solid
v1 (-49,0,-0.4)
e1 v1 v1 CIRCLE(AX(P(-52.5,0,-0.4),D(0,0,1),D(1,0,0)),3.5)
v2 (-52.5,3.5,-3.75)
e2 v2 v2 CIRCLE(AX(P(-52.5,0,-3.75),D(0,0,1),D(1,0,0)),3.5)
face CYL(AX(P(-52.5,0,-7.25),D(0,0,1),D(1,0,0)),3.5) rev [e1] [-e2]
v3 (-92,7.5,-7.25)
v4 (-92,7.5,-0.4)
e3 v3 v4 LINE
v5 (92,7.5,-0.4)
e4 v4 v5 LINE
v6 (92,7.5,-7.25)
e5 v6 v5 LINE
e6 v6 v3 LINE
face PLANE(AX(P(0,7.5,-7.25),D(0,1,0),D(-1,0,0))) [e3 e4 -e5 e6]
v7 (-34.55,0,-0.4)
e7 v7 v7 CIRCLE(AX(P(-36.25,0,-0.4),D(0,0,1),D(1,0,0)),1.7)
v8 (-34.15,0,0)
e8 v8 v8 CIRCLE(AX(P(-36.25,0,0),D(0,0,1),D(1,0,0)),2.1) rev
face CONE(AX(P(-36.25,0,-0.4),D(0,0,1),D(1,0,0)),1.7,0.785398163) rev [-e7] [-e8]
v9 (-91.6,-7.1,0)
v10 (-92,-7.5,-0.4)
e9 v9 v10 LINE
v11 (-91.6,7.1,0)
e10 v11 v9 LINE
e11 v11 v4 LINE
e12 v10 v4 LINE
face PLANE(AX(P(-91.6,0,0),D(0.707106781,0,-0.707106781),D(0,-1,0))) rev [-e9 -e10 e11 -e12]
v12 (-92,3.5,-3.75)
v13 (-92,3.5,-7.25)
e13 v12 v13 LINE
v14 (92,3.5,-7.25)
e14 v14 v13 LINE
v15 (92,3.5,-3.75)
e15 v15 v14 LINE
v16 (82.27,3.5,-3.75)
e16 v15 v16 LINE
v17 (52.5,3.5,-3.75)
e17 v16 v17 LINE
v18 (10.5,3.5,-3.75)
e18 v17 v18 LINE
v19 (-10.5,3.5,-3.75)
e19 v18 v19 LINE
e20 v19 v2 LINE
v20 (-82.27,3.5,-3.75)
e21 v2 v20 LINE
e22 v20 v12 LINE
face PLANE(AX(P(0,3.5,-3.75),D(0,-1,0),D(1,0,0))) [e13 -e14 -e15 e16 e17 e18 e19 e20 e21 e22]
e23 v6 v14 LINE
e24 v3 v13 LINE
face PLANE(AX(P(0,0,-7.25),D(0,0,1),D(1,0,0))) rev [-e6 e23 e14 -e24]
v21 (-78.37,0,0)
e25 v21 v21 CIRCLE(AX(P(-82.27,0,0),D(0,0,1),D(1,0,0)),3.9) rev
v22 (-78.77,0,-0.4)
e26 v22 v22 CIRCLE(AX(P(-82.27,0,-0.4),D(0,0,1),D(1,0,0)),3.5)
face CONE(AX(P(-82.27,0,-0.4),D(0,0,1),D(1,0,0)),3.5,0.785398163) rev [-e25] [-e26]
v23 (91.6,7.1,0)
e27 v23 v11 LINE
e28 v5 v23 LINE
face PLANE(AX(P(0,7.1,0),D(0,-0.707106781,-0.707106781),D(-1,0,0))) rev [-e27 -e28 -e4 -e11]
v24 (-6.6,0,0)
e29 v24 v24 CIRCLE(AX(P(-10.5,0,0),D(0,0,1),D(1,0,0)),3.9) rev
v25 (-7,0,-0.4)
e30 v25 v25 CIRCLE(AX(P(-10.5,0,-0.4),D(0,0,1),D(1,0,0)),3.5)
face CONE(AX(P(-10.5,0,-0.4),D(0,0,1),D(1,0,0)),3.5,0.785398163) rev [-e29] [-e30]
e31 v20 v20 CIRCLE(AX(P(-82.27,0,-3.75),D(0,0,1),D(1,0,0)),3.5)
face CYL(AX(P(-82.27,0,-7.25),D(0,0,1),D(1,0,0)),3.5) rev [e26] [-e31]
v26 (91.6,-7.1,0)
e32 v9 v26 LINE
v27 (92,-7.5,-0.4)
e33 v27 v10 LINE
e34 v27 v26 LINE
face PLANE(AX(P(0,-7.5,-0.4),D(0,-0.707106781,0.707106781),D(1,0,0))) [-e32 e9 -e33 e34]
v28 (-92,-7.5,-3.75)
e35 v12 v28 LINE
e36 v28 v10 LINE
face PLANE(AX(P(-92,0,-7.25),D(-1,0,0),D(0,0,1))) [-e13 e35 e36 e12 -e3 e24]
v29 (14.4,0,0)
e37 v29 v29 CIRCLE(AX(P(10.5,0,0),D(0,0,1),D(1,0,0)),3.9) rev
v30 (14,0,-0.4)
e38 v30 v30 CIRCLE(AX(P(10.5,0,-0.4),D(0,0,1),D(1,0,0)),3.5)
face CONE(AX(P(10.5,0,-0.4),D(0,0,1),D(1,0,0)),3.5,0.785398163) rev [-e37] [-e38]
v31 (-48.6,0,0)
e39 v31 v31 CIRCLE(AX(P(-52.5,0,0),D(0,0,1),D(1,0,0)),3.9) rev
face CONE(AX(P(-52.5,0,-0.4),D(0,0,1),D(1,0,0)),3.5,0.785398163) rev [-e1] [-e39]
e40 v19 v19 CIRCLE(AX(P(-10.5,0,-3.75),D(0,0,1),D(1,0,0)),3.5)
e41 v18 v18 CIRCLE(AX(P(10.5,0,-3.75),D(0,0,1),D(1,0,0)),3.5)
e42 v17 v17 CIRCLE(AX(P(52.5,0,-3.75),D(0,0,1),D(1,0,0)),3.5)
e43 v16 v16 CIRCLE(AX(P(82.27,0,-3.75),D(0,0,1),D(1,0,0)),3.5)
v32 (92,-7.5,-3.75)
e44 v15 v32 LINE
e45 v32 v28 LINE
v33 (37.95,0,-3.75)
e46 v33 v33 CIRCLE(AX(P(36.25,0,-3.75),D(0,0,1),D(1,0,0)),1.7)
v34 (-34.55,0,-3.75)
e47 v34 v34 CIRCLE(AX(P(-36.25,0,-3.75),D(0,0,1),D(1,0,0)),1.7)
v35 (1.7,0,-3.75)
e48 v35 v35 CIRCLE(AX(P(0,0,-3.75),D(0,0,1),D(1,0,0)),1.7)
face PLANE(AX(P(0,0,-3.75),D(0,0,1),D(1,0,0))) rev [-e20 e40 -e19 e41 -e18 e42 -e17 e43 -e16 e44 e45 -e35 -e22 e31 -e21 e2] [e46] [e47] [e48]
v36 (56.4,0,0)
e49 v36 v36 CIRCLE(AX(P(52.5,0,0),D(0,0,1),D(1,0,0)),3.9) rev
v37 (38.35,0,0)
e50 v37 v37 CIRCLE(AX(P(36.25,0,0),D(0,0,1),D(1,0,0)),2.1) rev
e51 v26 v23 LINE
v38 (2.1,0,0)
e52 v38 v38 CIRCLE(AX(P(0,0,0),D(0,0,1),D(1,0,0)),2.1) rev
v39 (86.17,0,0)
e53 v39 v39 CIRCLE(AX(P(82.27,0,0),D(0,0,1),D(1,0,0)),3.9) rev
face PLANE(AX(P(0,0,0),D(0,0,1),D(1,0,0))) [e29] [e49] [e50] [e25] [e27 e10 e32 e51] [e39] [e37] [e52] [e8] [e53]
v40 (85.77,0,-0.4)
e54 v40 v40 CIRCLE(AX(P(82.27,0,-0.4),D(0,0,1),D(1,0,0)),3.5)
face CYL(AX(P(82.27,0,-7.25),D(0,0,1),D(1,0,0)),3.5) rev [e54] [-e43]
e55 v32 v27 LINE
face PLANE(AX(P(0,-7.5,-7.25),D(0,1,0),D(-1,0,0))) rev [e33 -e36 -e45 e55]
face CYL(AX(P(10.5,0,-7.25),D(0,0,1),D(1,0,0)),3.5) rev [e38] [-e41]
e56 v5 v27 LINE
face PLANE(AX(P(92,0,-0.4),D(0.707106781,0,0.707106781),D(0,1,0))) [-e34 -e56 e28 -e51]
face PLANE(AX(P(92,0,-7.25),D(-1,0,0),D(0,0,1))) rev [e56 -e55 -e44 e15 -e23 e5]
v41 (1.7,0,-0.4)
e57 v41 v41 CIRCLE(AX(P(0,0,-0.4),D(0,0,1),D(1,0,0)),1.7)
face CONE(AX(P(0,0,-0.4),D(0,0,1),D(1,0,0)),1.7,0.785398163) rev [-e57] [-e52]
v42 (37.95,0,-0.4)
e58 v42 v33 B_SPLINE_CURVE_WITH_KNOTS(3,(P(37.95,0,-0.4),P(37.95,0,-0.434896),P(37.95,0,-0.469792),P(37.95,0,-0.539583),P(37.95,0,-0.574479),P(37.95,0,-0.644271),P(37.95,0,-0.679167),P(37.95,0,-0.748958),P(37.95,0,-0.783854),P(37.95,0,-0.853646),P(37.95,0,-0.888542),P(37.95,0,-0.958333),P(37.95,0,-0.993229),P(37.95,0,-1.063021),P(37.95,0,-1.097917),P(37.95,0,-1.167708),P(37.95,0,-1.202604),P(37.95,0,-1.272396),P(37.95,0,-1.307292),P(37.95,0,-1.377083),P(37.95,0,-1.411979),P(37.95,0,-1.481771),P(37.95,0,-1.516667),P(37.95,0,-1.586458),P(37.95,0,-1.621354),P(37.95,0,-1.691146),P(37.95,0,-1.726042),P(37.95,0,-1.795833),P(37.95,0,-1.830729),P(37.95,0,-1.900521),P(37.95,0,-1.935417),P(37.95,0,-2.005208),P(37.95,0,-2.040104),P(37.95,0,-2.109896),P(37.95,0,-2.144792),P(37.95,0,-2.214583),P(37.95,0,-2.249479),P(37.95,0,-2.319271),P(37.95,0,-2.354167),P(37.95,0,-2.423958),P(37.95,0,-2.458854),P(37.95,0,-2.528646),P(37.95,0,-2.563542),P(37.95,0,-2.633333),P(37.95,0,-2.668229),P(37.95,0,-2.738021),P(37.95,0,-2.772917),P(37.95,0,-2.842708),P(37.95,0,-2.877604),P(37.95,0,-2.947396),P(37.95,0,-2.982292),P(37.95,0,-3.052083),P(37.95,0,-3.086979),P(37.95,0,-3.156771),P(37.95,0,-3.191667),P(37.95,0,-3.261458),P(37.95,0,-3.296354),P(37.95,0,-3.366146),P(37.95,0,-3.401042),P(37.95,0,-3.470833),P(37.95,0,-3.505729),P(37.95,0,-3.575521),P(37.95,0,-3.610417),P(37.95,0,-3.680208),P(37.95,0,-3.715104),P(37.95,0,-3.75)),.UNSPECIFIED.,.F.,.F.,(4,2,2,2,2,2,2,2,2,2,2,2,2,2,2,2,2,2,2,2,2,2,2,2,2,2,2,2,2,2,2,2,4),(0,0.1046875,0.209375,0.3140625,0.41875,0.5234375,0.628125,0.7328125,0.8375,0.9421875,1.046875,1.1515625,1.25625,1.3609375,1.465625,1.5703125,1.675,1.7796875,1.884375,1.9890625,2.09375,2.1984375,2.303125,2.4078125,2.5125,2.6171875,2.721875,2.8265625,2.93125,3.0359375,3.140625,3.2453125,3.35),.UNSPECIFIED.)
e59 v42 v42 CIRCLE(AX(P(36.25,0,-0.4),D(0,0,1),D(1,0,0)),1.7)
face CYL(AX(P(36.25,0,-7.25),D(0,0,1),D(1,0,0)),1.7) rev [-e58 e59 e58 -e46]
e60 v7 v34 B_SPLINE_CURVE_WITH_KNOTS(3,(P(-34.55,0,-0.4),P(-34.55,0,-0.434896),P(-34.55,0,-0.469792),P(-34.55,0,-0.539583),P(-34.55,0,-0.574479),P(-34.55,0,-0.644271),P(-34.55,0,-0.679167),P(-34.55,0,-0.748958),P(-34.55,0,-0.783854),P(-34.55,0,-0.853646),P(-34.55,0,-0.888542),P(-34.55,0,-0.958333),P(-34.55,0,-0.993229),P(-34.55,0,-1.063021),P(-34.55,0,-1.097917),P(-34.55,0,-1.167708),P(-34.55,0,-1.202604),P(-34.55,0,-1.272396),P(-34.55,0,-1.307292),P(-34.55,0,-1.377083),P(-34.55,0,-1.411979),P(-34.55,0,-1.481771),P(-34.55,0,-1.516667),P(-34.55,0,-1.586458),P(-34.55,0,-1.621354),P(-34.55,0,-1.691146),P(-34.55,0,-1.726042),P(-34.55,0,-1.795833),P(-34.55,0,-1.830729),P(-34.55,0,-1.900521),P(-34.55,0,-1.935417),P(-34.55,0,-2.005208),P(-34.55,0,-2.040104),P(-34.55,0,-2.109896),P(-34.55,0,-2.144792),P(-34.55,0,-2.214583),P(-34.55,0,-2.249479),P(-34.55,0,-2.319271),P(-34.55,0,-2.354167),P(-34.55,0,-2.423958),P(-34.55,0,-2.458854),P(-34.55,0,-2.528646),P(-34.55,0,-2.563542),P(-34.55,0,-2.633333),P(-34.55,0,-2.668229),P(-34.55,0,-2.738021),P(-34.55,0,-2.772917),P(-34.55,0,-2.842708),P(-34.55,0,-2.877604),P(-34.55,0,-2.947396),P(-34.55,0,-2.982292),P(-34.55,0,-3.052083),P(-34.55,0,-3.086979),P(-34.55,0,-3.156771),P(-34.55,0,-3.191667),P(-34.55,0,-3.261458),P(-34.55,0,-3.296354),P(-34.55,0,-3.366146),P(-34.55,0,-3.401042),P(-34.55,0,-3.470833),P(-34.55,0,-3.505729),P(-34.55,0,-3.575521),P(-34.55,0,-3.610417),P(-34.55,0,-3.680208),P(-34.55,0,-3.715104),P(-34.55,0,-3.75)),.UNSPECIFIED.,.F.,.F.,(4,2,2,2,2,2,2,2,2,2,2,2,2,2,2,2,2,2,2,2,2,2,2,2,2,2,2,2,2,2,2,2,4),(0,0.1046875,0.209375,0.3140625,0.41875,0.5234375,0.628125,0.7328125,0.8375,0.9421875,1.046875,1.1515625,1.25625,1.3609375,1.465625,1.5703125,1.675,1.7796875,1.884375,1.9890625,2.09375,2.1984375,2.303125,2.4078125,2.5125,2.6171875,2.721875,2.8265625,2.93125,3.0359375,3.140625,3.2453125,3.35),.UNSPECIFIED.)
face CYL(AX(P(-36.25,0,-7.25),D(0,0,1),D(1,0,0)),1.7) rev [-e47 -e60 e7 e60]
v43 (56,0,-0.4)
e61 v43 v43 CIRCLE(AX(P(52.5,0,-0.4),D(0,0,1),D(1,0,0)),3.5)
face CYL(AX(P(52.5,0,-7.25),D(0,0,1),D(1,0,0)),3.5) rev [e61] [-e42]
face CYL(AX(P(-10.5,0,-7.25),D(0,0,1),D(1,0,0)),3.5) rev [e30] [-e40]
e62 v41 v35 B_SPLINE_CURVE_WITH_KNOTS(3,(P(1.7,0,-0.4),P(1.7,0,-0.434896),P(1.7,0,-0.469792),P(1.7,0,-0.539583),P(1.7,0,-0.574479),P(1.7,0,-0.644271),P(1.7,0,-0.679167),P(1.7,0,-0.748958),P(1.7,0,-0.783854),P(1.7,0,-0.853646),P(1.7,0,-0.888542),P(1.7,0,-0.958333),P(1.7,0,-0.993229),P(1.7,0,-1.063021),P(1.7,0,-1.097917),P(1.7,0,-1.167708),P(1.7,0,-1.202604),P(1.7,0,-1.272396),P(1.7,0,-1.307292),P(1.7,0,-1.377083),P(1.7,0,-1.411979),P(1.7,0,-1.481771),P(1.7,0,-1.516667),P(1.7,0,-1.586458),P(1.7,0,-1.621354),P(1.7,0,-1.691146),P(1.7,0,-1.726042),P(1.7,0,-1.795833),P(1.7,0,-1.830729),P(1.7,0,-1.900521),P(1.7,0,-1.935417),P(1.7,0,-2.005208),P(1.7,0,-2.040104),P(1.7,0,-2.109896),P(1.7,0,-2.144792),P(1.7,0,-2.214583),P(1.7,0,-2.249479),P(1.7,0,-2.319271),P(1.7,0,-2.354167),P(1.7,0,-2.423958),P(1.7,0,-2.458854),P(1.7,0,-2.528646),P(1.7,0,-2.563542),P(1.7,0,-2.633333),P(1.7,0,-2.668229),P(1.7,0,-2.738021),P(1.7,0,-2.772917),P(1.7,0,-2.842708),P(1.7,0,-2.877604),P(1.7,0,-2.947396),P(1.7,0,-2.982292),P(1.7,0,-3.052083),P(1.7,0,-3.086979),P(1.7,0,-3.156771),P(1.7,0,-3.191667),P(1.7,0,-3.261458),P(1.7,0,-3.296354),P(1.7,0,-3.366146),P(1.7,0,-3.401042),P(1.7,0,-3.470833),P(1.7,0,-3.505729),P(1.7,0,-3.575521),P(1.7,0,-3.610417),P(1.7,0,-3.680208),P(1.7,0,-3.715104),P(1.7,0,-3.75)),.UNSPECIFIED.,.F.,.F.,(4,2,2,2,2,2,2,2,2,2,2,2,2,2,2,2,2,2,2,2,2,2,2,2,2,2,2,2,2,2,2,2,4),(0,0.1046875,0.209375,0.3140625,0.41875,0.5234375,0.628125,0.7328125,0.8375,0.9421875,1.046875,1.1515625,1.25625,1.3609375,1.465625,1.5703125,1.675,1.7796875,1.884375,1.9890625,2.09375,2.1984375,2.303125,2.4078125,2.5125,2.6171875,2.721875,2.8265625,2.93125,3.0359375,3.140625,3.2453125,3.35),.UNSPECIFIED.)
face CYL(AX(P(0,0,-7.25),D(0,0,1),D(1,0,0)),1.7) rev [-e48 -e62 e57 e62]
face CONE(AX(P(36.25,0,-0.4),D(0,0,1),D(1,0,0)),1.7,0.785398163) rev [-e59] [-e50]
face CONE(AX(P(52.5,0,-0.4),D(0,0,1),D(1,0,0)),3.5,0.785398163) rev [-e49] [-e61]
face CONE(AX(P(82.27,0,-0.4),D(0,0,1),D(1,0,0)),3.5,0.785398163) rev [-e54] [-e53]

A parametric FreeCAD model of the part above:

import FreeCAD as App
import Part
import Sketcher
from FreeCAD import Vector
Q = App.Units.Quantity


def edges_at(feature, points):
    """Names of the edges that pass closest to the given points."""
    edges = feature.Shape.Edges
    near = lambda p: min(range(len(edges)), key=lambda i: edges[i].distToShape(Part.Vertex(*p))[0])
    return sorted({f"Edge{near(p) + 1}" for p in points})

doc = App.newDocument("Part")
body = doc.addObject("PartDesign::Body", "Body")

sketch1 = body.newObject("Sketcher::SketchObject", "Sketch")
sketch1.AttachmentSupport = (doc.getObject("XY_Plane"), [""])
sketch1.MapMode = "FlatFace"
sketch1.addGeometry(Part.LineSegment(Vector(-92, 8, 0), Vector(-92, -8, 0)), False)
sketch1.addGeometry(Part.LineSegment(Vector(-92, -8, 0), Vector(92, -8, 0)), False)
sketch1.addGeometry(Part.LineSegment(Vector(92, -8, 0), Vector(92, 8, 0)), False)
sketch1.addGeometry(Part.LineSegment(Vector(92, 8, 0), Vector(-92, 8, 0)), False)
sketch1.addConstraint(Sketcher.Constraint("Coincident", 0, 2, 1, 1))
sketch1.addConstraint(Sketcher.Constraint("Coincident", 1, 2, 2, 1))
sketch1.addConstraint(Sketcher.Constraint("Coincident", 2, 2, 3, 1))
sketch1.addConstraint(Sketcher.Constraint("Coincident", 3, 2, 0, 1))
sketch1.addConstraint(Sketcher.Constraint("Vertical", 0))
sketch1.addConstraint(Sketcher.Constraint("Horizontal", 1))
sketch1.addConstraint(Sketcher.Constraint("Vertical", 2))
sketch1.addConstraint(Sketcher.Constraint("Horizontal", 3))
sketch1.addConstraint(Sketcher.Constraint("Symmetric", 0, 2, 2, 2, -1, 1))
sketch1.addConstraint(Sketcher.Constraint("DistanceX", 1, 1, 1, 2, Q("184 mm")))
sketch1.addConstraint(Sketcher.Constraint("DistanceY", 0, 2, 0, 1, Q("15 mm")))
pad1 = body.newObject("PartDesign::Pad", "Pad")
pad1.Profile = sketch1
pad1.Length = 7.25
pad1.Reversed = True

sketch2 = body.newObject("Sketcher::SketchObject", "Sketch001")
sketch2.AttachmentSupport = (doc.getObject("XY_Plane"), [""])
sketch2.MapMode = "FlatFace"
sketch2.AttachmentOffset = App.Placement(Vector(0, 0, -7.25), App.Rotation())
sketch2.addGeometry(Part.LineSegment(Vector(-92, 4, 0), Vector(-92, -8, 0)), False)
sketch2.addGeometry(Part.LineSegment(Vector(-92, -8, 0), Vector(92, -8, 0)), False)
sketch2.addGeometry(Part.LineSegment(Vector(92, -8, 0), Vector(92, 4, 0)), False)
sketch2.addGeometry(Part.LineSegment(Vector(92, 4, 0), Vector(-92, 4, 0)), False)
sketch2.addConstraint(Sketcher.Constraint("Coincident", 0, 2, 1, 1))
sketch2.addConstraint(Sketcher.Constraint("Coincident", 1, 2, 2, 1))
sketch2.addConstraint(Sketcher.Constraint("Coincident", 2, 2, 3, 1))
sketch2.addConstraint(Sketcher.Constraint("Coincident", 3, 2, 0, 1))
sketch2.addConstraint(Sketcher.Constraint("Vertical", 0))
sketch2.addConstraint(Sketcher.Constraint("Horizontal", 1))
sketch2.addConstraint(Sketcher.Constraint("Vertical", 2))
sketch2.addConstraint(Sketcher.Constraint("Horizontal", 3))
sketch2.addConstraint(Sketcher.Constraint("DistanceX", 1, 1, 1, 2, Q("184 mm")))
sketch2.addConstraint(Sketcher.Constraint("DistanceY", 0, 2, 0, 1, Q("11 mm")))
sketch2.addConstraint(Sketcher.Constraint("DistanceX", 0, 2, -1, 1, Q("92 mm")))
sketch2.addConstraint(Sketcher.Constraint("DistanceY", 0, 2, -1, 1, Q("7.5 mm")))
pocket1 = body.newObject("PartDesign::Pocket", "Pocket")
pocket1.Profile = sketch2
pocket1.Length = 3.5
pocket1.Reversed = True

sketch3 = body.newObject("Sketcher::SketchObject", "Sketch002")
sketch3.AttachmentSupport = (doc.getObject("XY_Plane"), [""])
sketch3.MapMode = "FlatFace"
sketch3.addGeometry(Part.Circle(Vector(-52.5, 0, 0), Vector(0, 0, 1), 3.5), False)
sketch3.addGeometry(Part.Circle(Vector(-36.2, 0, 0), Vector(0, 0, 1), 1.7), False)
sketch3.addGeometry(Part.Circle(Vector(-10.5, 0, 0), Vector(0, 0, 1), 3.5), False)
sketch3.addGeometry(Part.Circle(Vector(0, 0, 0), Vector(0, 0, 1), 1.7), False)
sketch3.addGeometry(Part.Circle(Vector(10.5, 0, 0), Vector(0, 0, 1), 3.5), False)
sketch3.addGeometry(Part.Circle(Vector(36.2, 0, 0), Vector(0, 0, 1), 1.7), False)
sketch3.addGeometry(Part.Circle(Vector(52.5, 0, 0), Vector(0, 0, 1), 3.5), False)
sketch3.addGeometry(Part.Circle(Vector(-82.3, 0, 0), Vector(0, 0, 1), 3.5), False)
sketch3.addGeometry(Part.Circle(Vector(82.3, 0, 0), Vector(0, 0, 1), 3.5), False)
sketch3.addConstraint(Sketcher.Constraint("Coincident", 3, 3, -1, 1))
sketch3.addConstraint(Sketcher.Constraint("Equal", 0, 2))
sketch3.addConstraint(Sketcher.Constraint("Equal", 1, 3))
sketch3.addConstraint(Sketcher.Constraint("Equal", 2, 4))
sketch3.addConstraint(Sketcher.Constraint("Equal", 3, 5))
sketch3.addConstraint(Sketcher.Constraint("Equal", 4, 6))
sketch3.addConstraint(Sketcher.Constraint("Equal", 6, 7))
sketch3.addConstraint(Sketcher.Constraint("Equal", 7, 8))
sketch3.addConstraint(Sketcher.Constraint("Symmetric", 2, 3, 4, 3, -1, 1))
sketch3.addConstraint(Sketcher.Constraint("Symmetric", 1, 3, 5, 3, -1, 1))
sketch3.addConstraint(Sketcher.Constraint("Symmetric", 0, 3, 6, 3, -1, 1))
sketch3.addConstraint(Sketcher.Constraint("Symmetric", 7, 3, 8, 3, -1, 1))
sketch3.addConstraint(Sketcher.Constraint("PointOnObject", 0, 3, -1))
sketch3.addConstraint(Sketcher.Constraint("PointOnObject", 1, 3, -1))
sketch3.addConstraint(Sketcher.Constraint("PointOnObject", 2, 3, -1))
sketch3.addConstraint(Sketcher.Constraint("PointOnObject", 7, 3, -1))
sketch3.addConstraint(Sketcher.Constraint("Diameter", 0, Q("7 mm")))
sketch3.addConstraint(Sketcher.Constraint("Diameter", 1, Q("3.4 mm")))
sketch3.addConstraint(Sketcher.Constraint("DistanceX", 0, 3, 2, 3, Q("42 mm")))
sketch3.addConstraint(Sketcher.Constraint("DistanceX", 2, 3, 4, 3, Q("21 mm")))
sketch3.addConstraint(Sketcher.Constraint("DistanceX", 1, 3, 5, 3, Q("72.5 mm")))
sketch3.addConstraint(Sketcher.Constraint("DistanceX", 7, 3, -1, 1, Q("82.27 mm")))
pocket2 = body.newObject("PartDesign::Pocket", "Pocket001")
pocket2.Profile = sketch3
pocket2.Type = "ThroughAll"
pocket2.Midplane = True
doc.recompute()

chamfer = body.newObject("PartDesign::Chamfer", "Chamfer")
chamfer.Base = (pocket2, edges_at(pocket2, [
    (-37.95, 0, 0),
    (-14, 0, 0),
    (-1.7, 0, 0),
    (7, 0, 0),
    (0, -7.5, 0),
    (78.77, 0, 0),
    (-92, 0, 0),
    (-85.77, 0, 0),
    (49, 0, 0),
    (34.55, 0, 0),
    (0, 7.5, 0),
    (-56, 0, 0),
    (92, 0, 0),
]))
chamfer.Size = 0.4

doc.recompute()
